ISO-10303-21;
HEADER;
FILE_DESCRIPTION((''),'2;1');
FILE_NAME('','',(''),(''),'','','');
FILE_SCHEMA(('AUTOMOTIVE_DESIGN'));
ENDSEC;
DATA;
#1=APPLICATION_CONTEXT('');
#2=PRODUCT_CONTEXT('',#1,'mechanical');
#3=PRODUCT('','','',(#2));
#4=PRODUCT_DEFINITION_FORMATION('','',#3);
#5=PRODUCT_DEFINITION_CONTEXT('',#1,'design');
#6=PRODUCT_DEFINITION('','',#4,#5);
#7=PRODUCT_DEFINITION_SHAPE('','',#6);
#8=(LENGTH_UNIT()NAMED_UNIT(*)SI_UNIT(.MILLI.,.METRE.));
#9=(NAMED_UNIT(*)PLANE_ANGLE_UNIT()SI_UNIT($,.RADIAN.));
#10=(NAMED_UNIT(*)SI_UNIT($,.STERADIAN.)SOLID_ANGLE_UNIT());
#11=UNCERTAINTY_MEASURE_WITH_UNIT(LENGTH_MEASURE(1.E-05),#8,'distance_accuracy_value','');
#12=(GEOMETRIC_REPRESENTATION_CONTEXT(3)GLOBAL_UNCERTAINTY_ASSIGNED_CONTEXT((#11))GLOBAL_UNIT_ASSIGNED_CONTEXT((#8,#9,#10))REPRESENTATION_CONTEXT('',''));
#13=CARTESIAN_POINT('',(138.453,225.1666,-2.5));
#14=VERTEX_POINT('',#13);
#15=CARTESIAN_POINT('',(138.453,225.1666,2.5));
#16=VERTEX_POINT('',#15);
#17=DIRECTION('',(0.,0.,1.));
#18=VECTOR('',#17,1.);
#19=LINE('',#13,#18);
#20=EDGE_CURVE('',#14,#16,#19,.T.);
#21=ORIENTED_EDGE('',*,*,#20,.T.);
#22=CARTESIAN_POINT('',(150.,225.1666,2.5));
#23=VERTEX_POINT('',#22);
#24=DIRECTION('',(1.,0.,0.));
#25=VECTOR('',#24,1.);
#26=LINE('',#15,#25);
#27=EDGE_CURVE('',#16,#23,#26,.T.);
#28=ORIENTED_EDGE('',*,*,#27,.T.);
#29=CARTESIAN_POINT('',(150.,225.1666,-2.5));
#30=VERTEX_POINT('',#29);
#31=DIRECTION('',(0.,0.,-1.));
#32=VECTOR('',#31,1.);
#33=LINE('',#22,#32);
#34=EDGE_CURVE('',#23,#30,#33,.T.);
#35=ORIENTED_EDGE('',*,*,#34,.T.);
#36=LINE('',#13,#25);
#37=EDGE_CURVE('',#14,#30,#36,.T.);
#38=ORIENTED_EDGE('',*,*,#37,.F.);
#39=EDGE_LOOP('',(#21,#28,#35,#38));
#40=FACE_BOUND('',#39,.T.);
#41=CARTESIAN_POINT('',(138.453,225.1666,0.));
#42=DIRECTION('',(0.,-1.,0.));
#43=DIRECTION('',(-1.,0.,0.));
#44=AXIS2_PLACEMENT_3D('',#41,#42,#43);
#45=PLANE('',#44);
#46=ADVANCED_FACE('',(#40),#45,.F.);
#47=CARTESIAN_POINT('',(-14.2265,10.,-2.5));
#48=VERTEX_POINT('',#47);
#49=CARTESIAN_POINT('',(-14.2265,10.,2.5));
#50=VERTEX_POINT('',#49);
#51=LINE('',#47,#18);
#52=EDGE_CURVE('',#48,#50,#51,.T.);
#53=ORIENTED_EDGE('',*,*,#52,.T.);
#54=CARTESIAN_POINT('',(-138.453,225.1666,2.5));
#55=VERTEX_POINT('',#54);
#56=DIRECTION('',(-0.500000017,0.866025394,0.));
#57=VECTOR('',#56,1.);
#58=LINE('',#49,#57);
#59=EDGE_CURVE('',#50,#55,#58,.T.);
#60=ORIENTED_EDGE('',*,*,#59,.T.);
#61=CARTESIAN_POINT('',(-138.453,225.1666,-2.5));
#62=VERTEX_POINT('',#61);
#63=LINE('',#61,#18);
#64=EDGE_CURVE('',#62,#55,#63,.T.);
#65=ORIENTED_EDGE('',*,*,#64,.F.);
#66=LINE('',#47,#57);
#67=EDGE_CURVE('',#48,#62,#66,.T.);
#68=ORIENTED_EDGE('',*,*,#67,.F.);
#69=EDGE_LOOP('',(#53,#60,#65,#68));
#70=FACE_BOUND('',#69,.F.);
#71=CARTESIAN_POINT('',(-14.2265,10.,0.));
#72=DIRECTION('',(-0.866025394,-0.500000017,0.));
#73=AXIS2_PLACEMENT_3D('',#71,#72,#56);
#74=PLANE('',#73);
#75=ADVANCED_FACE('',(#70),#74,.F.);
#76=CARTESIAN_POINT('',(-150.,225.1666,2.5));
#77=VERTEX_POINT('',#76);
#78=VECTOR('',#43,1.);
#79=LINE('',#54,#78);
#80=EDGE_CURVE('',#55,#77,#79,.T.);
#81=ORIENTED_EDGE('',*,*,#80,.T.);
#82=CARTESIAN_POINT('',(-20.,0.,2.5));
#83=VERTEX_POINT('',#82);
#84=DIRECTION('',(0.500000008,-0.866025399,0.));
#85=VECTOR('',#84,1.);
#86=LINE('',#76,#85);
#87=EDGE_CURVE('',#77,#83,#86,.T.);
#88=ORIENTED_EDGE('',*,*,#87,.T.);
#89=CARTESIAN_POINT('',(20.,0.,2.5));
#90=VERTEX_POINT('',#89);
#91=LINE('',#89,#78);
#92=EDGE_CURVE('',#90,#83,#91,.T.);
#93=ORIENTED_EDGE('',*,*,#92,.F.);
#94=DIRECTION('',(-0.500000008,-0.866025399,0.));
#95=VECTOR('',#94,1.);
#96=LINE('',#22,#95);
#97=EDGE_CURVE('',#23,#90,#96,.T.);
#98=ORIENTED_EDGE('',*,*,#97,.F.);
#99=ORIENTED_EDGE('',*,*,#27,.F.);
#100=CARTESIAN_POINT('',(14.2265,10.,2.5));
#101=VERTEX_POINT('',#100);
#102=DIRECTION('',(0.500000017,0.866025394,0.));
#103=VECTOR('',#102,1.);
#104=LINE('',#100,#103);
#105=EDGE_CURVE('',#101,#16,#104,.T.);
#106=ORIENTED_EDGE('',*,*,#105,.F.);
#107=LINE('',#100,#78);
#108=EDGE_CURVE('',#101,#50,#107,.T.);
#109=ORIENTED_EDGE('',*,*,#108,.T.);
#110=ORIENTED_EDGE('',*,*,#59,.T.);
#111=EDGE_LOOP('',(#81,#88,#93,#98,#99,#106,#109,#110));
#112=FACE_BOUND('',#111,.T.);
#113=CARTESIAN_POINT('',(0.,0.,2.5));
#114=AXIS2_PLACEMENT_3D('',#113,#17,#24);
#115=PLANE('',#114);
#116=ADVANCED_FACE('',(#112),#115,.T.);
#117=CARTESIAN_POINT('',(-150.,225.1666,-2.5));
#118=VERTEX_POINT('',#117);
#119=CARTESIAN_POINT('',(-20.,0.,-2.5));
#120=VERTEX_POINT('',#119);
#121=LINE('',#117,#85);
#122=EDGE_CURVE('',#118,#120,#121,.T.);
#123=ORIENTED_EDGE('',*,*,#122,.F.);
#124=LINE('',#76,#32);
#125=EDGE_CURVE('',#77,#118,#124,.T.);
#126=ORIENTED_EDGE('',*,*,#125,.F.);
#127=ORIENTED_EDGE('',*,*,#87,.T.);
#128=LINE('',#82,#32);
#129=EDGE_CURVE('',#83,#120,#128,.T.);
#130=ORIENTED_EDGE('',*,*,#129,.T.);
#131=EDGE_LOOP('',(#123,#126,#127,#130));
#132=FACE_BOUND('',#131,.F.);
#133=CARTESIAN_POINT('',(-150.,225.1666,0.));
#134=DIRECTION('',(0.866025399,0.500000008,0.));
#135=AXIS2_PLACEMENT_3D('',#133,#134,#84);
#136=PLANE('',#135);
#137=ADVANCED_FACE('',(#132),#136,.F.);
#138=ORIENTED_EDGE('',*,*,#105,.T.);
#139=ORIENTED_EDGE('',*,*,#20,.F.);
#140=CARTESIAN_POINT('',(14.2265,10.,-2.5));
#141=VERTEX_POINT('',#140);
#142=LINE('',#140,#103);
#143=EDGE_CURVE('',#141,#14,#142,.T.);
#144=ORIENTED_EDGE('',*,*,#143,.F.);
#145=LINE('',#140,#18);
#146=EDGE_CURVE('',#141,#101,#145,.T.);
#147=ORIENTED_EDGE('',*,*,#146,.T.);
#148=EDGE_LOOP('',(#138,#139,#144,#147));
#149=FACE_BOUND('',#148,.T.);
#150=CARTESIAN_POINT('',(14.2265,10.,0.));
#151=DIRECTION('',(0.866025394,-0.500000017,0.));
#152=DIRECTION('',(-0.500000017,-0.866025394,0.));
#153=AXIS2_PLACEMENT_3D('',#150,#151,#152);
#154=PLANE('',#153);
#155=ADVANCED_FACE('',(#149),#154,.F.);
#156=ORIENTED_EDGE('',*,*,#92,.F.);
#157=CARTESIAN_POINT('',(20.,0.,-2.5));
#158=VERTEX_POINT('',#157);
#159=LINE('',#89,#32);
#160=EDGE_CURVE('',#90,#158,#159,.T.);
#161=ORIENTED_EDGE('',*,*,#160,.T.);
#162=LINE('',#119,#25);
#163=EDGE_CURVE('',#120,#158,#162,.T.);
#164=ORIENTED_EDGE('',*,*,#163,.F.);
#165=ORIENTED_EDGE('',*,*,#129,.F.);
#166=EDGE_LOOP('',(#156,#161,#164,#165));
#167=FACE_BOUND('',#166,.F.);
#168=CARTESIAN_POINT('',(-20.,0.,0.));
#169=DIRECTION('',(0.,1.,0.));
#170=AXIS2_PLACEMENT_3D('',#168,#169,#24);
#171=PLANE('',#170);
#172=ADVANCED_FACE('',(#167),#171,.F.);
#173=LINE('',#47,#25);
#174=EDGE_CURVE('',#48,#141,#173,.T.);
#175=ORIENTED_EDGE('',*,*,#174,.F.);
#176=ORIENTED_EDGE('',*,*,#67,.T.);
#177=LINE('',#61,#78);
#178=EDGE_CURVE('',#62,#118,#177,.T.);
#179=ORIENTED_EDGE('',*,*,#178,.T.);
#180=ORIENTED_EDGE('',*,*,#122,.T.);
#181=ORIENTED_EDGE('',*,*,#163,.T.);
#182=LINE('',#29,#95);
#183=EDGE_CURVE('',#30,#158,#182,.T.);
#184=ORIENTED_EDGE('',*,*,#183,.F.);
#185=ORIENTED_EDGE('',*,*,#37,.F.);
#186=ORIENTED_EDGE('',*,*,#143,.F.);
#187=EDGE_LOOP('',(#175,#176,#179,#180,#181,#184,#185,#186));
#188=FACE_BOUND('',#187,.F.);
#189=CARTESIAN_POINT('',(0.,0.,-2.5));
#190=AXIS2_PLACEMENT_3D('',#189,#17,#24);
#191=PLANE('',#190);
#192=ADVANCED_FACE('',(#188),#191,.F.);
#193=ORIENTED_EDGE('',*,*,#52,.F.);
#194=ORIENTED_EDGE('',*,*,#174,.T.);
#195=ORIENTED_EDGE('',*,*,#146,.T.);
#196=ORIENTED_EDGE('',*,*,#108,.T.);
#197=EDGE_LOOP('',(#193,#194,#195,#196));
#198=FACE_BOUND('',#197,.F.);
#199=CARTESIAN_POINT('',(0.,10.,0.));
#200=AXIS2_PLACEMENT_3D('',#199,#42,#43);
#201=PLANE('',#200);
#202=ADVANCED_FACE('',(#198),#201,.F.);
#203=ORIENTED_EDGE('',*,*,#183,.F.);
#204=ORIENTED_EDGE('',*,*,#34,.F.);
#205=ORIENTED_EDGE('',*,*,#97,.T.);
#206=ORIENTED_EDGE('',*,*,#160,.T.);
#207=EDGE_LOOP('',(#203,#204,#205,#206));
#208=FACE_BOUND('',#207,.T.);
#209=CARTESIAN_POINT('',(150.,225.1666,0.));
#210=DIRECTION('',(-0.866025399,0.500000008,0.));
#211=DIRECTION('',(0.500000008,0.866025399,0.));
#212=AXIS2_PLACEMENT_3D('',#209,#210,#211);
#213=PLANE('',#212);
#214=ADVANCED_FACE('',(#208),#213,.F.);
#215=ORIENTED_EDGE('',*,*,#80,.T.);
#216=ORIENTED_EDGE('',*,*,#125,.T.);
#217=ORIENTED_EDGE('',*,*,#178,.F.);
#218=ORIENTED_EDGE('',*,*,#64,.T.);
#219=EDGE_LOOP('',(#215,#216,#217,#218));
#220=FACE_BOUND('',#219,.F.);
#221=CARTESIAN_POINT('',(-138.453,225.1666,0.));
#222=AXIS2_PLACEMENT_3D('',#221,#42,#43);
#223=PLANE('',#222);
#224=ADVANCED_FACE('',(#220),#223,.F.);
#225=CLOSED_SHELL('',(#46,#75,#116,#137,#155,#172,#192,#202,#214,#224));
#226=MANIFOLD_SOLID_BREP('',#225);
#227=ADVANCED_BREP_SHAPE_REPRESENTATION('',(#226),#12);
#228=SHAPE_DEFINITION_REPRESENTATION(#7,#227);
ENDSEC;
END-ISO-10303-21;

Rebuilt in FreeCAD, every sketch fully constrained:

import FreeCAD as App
import Part
import Sketcher

V = App.Vector
Q = App.Units.Quantity


def add_polygon(sketch, points):
    """Adds a closed chain of lines whose ends are joined by coincident constraints."""
    first, n = sketch.GeometryCount, len(points)
    for a, b in zip(points, points[1:] + points[:1]):
        sketch.addGeometry(Part.LineSegment(App.Vector(*a, 0), App.Vector(*b, 0)), False)
    for i in range(n):
        sketch.addConstraint(Sketcher.Constraint("Coincident", first + i, 2, first + (i + 1) % n, 1))

doc = App.newDocument("Part")
body = doc.addObject("PartDesign::Body", "Body")

# Sketch on XY plane
sketch1 = body.newObject("Sketcher::SketchObject", "Sketch")
sketch1.AttachmentSupport = (doc.getObject("XY_Plane"), [""])
sketch1.MapMode = "FlatFace"
add_polygon(sketch1, [(0, 0), (0, 10), (-14, 10), (-138, 225), (-150, 225), (-20, 0)])  # lines 0-5
sketch1.addConstraint([
    Sketcher.Constraint("Vertical", 0),
    Sketcher.Constraint("Horizontal", 1),
    Sketcher.Constraint("Horizontal", 3),
    Sketcher.Constraint("Horizontal", 5),
    Sketcher.Constraint("Coincident", 5, 2, -1, 1),
    Sketcher.Constraint("Parallel", 2, 4),
    Sketcher.Constraint("DistanceX", 5, 1, 5, 2, Q("20 mm")),
    Sketcher.Constraint("DistanceY", 0, 1, 0, 2, Q("10 mm")),
    Sketcher.Constraint("Distance", 4, Q("260 mm")),
    Sketcher.Constraint("Angle", 2, Q("120 deg")),
    Sketcher.Constraint("DistanceX", 3, 2, 3, 1, Q("11.547 mm")),
])
pad1 = body.newObject("PartDesign::Pad", "Pad")
pad1.Profile = sketch1
pad1.Length = 5
pad1.Midplane = True
doc.recompute()

mirrored = body.newObject("PartDesign::Mirrored", "Mirrored")
mirrored.Originals = [pad1]
mirrored.MirrorPlane = (doc.getObject("YZ_Plane"), [""])
body.Tip = mirrored

doc.recompute()
